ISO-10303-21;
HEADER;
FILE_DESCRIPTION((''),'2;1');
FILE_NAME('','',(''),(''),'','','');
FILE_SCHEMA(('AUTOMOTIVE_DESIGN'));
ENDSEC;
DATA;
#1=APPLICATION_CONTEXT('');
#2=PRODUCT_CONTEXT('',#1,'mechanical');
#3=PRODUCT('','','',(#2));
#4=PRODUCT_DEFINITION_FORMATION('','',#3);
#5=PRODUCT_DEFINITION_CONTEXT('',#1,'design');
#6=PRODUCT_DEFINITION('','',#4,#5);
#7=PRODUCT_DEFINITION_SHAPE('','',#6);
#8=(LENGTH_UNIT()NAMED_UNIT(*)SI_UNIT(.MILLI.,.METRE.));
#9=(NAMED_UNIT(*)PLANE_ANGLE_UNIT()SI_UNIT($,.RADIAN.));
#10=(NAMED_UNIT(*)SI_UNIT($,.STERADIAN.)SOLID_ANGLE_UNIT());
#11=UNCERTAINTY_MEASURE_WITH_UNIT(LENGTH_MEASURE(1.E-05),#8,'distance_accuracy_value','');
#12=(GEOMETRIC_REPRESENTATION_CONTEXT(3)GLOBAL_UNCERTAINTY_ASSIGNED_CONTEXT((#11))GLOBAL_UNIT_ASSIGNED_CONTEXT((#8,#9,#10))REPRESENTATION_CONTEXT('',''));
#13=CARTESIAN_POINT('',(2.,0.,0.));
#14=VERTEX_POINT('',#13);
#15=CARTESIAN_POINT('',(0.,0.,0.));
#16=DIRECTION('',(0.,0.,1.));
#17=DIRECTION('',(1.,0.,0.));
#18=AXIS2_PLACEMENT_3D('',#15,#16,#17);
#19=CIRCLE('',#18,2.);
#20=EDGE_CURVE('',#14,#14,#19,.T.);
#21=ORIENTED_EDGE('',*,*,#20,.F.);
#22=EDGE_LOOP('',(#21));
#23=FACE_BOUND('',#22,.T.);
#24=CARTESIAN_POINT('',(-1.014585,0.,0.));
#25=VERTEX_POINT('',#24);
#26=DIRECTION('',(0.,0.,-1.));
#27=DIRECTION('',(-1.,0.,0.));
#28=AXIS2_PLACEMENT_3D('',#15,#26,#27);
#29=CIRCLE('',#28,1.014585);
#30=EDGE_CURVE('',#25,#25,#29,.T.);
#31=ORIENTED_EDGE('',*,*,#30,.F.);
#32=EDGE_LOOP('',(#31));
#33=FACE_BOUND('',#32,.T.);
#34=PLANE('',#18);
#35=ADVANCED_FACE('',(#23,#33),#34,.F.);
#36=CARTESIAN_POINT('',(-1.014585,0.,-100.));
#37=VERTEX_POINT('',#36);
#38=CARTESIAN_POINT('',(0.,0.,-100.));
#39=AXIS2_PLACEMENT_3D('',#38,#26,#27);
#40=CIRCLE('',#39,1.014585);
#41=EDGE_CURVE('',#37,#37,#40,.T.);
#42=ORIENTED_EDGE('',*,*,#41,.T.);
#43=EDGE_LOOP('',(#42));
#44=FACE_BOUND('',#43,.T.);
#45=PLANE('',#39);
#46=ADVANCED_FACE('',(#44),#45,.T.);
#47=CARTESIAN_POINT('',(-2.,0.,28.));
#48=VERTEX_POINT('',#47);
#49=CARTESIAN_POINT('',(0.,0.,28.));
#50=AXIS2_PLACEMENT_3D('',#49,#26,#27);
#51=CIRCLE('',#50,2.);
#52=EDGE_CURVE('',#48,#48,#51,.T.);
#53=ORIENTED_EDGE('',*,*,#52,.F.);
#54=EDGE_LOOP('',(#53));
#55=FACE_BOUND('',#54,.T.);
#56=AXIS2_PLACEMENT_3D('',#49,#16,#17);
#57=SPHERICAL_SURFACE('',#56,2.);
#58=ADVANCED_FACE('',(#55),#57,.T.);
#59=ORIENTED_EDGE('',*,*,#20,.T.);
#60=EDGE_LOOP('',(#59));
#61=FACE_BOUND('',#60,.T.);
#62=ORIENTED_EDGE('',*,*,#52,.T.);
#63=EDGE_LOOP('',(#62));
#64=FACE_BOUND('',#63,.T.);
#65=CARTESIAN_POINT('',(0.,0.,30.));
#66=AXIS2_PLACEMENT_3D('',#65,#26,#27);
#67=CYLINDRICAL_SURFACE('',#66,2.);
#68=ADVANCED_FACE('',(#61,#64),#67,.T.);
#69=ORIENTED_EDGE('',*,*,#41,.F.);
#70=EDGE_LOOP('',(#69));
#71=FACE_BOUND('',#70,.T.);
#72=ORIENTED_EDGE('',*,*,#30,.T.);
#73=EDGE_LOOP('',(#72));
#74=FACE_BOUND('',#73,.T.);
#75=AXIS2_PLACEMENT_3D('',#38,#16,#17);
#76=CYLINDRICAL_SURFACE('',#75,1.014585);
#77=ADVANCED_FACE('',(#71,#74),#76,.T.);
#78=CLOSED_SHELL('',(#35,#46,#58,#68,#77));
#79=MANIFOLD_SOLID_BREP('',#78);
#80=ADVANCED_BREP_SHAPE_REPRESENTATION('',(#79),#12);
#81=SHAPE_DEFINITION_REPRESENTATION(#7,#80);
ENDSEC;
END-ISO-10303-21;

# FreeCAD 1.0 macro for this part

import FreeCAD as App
import Part
import Sketcher
from FreeCAD import Vector


def edges_at(feature, points):
    """Names of the edges that pass closest to the given points."""
    edges = feature.Shape.Edges
    near = lambda p: min(range(len(edges)), key=lambda i: edges[i].distToShape(Part.Vertex(*p))[0])
    return sorted({f"Edge{near(p) + 1}" for p in points})

doc = App.newDocument("Part")
body = doc.addObject("PartDesign::Body", "Body")

# Sketch on XY plane
sketch1 = body.newObject("Sketcher::SketchObject", "Sketch")
sketch1.AttachmentSupport = (doc.getObject("XY_Plane"), [""])
sketch1.MapMode = "FlatFace"
sketch1.addGeometry(Part.Circle(Vector(0, 0, 0), Vector(0, 0, 1), 2), False)
sketch1.addConstraint([
    Sketcher.Constraint("Coincident", 0, 3, -1, 1),
    Sketcher.Constraint("Diameter", 0, 4.0),
])
pad1 = body.newObject("PartDesign::Pad", "Pad")
pad1.Profile = sketch1
pad1.Length = 30
doc.recompute()

fillet = body.newObject("PartDesign::Fillet", "Fillet")
fillet.Base = (pad1, edges_at(pad1, [(-2, 0, 30)]))
fillet.Radius = 2

# Sketch on XY plane
sketch2 = body.newObject("Sketcher::SketchObject", "Sketch001")
sketch2.AttachmentSupport = (doc.getObject("XY_Plane"), [""])
sketch2.MapMode = "FlatFace"
sketch2.addGeometry(Part.Circle(Vector(0, 0, 0), Vector(0, 0, 1), 1), False)
sketch2.addConstraint([
    Sketcher.Constraint("Coincident", 0, 3, -1, 1),
    Sketcher.Constraint("Diameter", 0, 2.029171),
])
pad2 = body.newObject("PartDesign::Pad", "Pad001")
pad2.Profile = sketch2
pad2.Length = 100
pad2.Reversed = True

doc.recompute()
